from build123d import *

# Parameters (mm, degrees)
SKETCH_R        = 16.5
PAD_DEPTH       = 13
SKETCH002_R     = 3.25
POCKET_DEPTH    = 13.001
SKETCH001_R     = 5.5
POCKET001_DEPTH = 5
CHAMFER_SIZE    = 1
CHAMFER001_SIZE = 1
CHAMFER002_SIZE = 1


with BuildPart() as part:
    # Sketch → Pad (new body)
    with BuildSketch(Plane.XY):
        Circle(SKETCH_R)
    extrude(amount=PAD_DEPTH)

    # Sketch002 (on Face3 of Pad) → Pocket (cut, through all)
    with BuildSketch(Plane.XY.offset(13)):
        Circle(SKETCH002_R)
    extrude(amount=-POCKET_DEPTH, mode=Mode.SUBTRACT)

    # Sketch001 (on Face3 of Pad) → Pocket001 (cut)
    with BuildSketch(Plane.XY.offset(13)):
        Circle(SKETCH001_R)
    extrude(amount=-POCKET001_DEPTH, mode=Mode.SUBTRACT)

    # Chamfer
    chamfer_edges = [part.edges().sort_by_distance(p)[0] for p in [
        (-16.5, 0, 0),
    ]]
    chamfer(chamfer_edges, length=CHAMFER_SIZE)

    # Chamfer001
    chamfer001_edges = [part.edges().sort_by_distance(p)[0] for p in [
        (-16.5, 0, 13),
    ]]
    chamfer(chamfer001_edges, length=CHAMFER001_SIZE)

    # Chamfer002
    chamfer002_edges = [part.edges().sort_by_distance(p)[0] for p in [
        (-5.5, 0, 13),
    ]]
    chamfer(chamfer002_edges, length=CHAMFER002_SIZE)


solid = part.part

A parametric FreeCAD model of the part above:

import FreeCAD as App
import Part
import Sketcher
Q = App.Units.Quantity


def edges_at(feature, points):
    """Names of the edges that pass closest to the given points."""
    edges = feature.Shape.Edges
    near = lambda p: min(range(len(edges)), key=lambda i: edges[i].distToShape(Part.Vertex(*p))[0])
    return sorted({f"Edge{near(p) + 1}" for p in points})

doc = App.newDocument("Part")
params = doc.addObject("Spreadsheet::Sheet", "Params")
for row, (alias, value) in enumerate([
    ("sketch1_diameter", "33 mm"),
    ("pad1_length", "13 mm"),
    ("sketch2_diameter", "6.5 mm"),
    ("sketch3_diameter", "11 mm"),
    ("pocket2_length", "5 mm"),
    ("chamfer_size", "1 mm"),
    ("chamfer2_size", "1 mm"),
    ("chamfer3_size", "1 mm"),
], start=1):
    params.set(f"A{row}", alias)
    params.set(f"B{row}", "=" + value)
    params.setAlias(f"B{row}", alias)

body = doc.addObject("PartDesign::Body", "Body")

sketch1 = body.newObject("Sketcher::SketchObject", "Sketch")
sketch1.AttachmentSupport = (doc.getObject("XY_Plane"), [""])
sketch1.MapMode = "FlatFace"
sketch1.addGeometry(Part.Circle(App.Vector(0, 0, 0), App.Vector(0, 0, 1), 16), False)
sketch1.addConstraint([
    Sketcher.Constraint("Coincident", 0, 3, -1, 1),
    Sketcher.Constraint("Diameter", 0, Q("33 mm")),
])
sketch1.setExpression("Constraints[1]", "Params.sketch1_diameter")
pad1 = body.newObject("PartDesign::Pad", "Pad")
pad1.Profile = sketch1
pad1.setExpression("Length", "Params.pad1_length")

sketch2 = body.newObject("Sketcher::SketchObject", "Sketch001")
sketch2.AttachmentSupport = (doc.getObject("XY_Plane"), [""])
sketch2.MapMode = "FlatFace"
sketch2.AttachmentOffset = App.Placement(App.Vector(0, 0, 13), App.Rotation())
sketch2.addGeometry(Part.Circle(App.Vector(0, 0, 0), App.Vector(0, 0, 1), 3.2), False)
sketch2.addConstraint([
    Sketcher.Constraint("Coincident", 0, 3, -1, 1),
    Sketcher.Constraint("Diameter", 0, Q("6.5 mm")),
])
sketch2.setExpression("Constraints[1]", "Params.sketch2_diameter")
pocket1 = body.newObject("PartDesign::Pocket", "Pocket")
pocket1.Profile = sketch2
pocket1.Type = "ThroughAll"

sketch3 = body.newObject("Sketcher::SketchObject", "Sketch002")
sketch3.AttachmentSupport = (doc.getObject("XY_Plane"), [""])
sketch3.MapMode = "FlatFace"
sketch3.AttachmentOffset = App.Placement(App.Vector(0, 0, 13), App.Rotation())
sketch3.addGeometry(Part.Circle(App.Vector(0, 0, 0), App.Vector(0, 0, 1), 6), False)
sketch3.addConstraint([
    Sketcher.Constraint("Coincident", 0, 3, -1, 1),
    Sketcher.Constraint("Diameter", 0, Q("11 mm")),
])
sketch3.setExpression("Constraints[1]", "Params.sketch3_diameter")
pocket2 = body.newObject("PartDesign::Pocket", "Pocket001")
pocket2.Profile = sketch3
pocket2.setExpression("Length", "Params.pocket2_length")
doc.recompute()

chamfer = body.newObject("PartDesign::Chamfer", "Chamfer")
chamfer.Base = (pocket2, edges_at(pocket2, [(-16.5, 0, 0)]))
chamfer.setExpression("Size", "Params.chamfer_size")
doc.recompute()

chamfer2 = body.newObject("PartDesign::Chamfer", "Chamfer001")
chamfer2.Base = (chamfer, edges_at(chamfer, [(-16.5, 0, 13)]))
chamfer2.setExpression("Size", "Params.chamfer2_size")
doc.recompute()

chamfer3 = body.newObject("PartDesign::Chamfer", "Chamfer002")
chamfer3.Base = (chamfer2, edges_at(chamfer2, [(-5.5, 0, 13)]))
chamfer3.setExpression("Size", "Params.chamfer3_size")

doc.recompute()
